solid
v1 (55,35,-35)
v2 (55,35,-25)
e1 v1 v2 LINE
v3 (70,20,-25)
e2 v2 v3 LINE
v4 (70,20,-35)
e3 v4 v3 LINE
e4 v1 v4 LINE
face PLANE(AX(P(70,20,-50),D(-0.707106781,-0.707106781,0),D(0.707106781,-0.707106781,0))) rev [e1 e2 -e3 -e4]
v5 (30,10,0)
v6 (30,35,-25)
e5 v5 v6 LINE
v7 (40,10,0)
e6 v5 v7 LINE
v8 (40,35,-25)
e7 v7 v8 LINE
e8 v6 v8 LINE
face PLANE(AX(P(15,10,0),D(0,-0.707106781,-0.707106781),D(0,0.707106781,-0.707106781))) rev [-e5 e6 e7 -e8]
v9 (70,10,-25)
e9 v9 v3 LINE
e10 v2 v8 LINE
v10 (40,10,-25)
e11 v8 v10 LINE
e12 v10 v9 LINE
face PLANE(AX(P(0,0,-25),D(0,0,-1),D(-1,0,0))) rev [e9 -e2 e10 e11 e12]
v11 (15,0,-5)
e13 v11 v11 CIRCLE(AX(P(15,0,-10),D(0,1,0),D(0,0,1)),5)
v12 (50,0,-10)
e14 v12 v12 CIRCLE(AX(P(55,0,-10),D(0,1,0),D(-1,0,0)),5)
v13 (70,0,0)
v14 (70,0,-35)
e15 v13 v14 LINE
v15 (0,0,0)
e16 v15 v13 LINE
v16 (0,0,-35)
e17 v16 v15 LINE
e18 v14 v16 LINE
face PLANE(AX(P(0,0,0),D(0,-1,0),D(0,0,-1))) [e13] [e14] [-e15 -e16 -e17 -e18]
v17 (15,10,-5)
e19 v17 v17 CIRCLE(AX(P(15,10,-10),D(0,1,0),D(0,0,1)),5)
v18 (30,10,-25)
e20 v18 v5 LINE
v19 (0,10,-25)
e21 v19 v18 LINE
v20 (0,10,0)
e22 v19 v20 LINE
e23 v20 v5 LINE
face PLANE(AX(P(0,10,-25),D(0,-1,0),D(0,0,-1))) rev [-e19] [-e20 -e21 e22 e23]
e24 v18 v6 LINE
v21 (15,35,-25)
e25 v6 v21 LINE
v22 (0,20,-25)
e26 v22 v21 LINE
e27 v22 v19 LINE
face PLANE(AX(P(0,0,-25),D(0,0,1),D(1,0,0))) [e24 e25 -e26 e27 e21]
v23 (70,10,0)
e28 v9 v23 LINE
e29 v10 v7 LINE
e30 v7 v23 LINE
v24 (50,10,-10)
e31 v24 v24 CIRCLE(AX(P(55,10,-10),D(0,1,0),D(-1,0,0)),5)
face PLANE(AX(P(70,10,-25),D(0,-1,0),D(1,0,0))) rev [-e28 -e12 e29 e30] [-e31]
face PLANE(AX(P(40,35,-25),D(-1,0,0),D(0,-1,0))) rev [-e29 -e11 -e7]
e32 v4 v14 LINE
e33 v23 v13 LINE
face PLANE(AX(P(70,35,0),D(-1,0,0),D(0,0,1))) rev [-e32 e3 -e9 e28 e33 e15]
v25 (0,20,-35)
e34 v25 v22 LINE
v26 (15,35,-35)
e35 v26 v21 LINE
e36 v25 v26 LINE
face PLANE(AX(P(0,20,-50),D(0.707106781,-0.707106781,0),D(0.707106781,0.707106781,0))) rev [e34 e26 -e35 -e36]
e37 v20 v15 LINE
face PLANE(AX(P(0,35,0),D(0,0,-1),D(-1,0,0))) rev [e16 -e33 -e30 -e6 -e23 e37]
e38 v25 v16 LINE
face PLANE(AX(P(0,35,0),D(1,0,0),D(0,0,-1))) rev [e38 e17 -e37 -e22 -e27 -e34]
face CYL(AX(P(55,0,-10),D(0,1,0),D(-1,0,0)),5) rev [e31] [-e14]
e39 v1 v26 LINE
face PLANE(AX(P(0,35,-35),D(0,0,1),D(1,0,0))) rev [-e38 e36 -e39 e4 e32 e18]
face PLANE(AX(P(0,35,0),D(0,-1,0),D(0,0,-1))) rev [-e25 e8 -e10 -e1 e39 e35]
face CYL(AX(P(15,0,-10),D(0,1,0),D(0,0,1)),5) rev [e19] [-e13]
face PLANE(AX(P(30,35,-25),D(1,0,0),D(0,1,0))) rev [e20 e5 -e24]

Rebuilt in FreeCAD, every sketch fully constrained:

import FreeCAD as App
import Part
import Sketcher

V = App.Vector
Q = App.Units.Quantity

doc = App.newDocument("Part")
body = doc.addObject("PartDesign::Body", "Body")

# Sketch on XZ plane
sketch1 = body.newObject("Sketcher::SketchObject", "Sketch")
sketch1.AttachmentSupport = (doc.getObject("XZ_Plane"), [""])
sketch1.MapMode = "FlatFace"
sketch1.addGeometry(Part.LineSegment(V(0, -35, 0), V(0, 0, 0)), False)
sketch1.addGeometry(Part.LineSegment(V(0, 0, 0), V(70, 0, 0)), False)
sketch1.addGeometry(Part.LineSegment(V(70, 0, 0), V(70, -35, 0)), False)
sketch1.addGeometry(Part.LineSegment(V(70, -35, 0), V(0, -35, 0)), False)
sketch1.addConstraint(Sketcher.Constraint("Coincident", 0, 2, 1, 1))
sketch1.addConstraint(Sketcher.Constraint("Coincident", 1, 2, 2, 1))
sketch1.addConstraint(Sketcher.Constraint("Coincident", 2, 2, 3, 1))
sketch1.addConstraint(Sketcher.Constraint("Coincident", 3, 2, 0, 1))
sketch1.addConstraint(Sketcher.Constraint("Vertical", 0))
sketch1.addConstraint(Sketcher.Constraint("Horizontal", 1))
sketch1.addConstraint(Sketcher.Constraint("Vertical", 2))
sketch1.addConstraint(Sketcher.Constraint("Horizontal", 3))
sketch1.addConstraint(Sketcher.Constraint("Coincident", 0, 2, -1, 1))
sketch1.addConstraint(Sketcher.Constraint("DistanceX", 1, 1, 1, 2, Q("70 mm")))
sketch1.addConstraint(Sketcher.Constraint("DistanceY", 0, 1, 0, 2, Q("35 mm")))
pad1 = body.newObject("PartDesign::Pad", "Pad")
pad1.Profile = sketch1
pad1.Length = 35
pad1.Reversed = True

# Sketch on XY plane
sketch2 = body.newObject("Sketcher::SketchObject", "Sketch001")
sketch2.AttachmentSupport = (doc.getObject("XY_Plane"), [""])
sketch2.MapMode = "FlatFace"
sketch2.addGeometry(Part.LineSegment(V(40, 35, 0), V(40, 10, 0)), False)
sketch2.addGeometry(Part.LineSegment(V(40, 10, 0), V(70, 10, 0)), False)
sketch2.addGeometry(Part.LineSegment(V(70, 10, 0), V(70, 35, 0)), False)
sketch2.addGeometry(Part.LineSegment(V(70, 35, 0), V(40, 35, 0)), False)
sketch2.addConstraint(Sketcher.Constraint("Coincident", 0, 2, 1, 1))
sketch2.addConstraint(Sketcher.Constraint("Coincident", 1, 2, 2, 1))
sketch2.addConstraint(Sketcher.Constraint("Coincident", 2, 2, 3, 1))
sketch2.addConstraint(Sketcher.Constraint("Coincident", 3, 2, 0, 1))
sketch2.addConstraint(Sketcher.Constraint("Vertical", 0))
sketch2.addConstraint(Sketcher.Constraint("Horizontal", 1))
sketch2.addConstraint(Sketcher.Constraint("Vertical", 2))
sketch2.addConstraint(Sketcher.Constraint("Horizontal", 3))
sketch2.addConstraint(Sketcher.Constraint("DistanceX", 1, 1, 1, 2, Q("30 mm")))
sketch2.addConstraint(Sketcher.Constraint("DistanceY", 0, 2, 0, 1, Q("25 mm")))
sketch2.addConstraint(Sketcher.Constraint("DistanceX", -1, 1, 0, 2, Q("40 mm")))
sketch2.addConstraint(Sketcher.Constraint("DistanceY", -1, 1, 0, 2, Q("10 mm")))
pocket1 = body.newObject("PartDesign::Pocket", "Pocket")
pocket1.Profile = sketch2
pocket1.Length = 25

# Sketch on XY plane
sketch3 = body.newObject("Sketcher::SketchObject", "Sketch002")
sketch3.AttachmentSupport = (doc.getObject("XY_Plane"), [""])
sketch3.MapMode = "FlatFace"
sketch3.addGeometry(Part.LineSegment(V(0, 35, 0), V(0, 10, 0)), False)
sketch3.addGeometry(Part.LineSegment(V(0, 10, 0), V(30, 10, 0)), False)
sketch3.addGeometry(Part.LineSegment(V(30, 10, 0), V(30, 35, 0)), False)
sketch3.addGeometry(Part.LineSegment(V(30, 35, 0), V(0, 35, 0)), False)
sketch3.addConstraint(Sketcher.Constraint("Coincident", 0, 2, 1, 1))
sketch3.addConstraint(Sketcher.Constraint("Coincident", 1, 2, 2, 1))
sketch3.addConstraint(Sketcher.Constraint("Coincident", 2, 2, 3, 1))
sketch3.addConstraint(Sketcher.Constraint("Coincident", 3, 2, 0, 1))
sketch3.addConstraint(Sketcher.Constraint("Vertical", 0))
sketch3.addConstraint(Sketcher.Constraint("Horizontal", 1))
sketch3.addConstraint(Sketcher.Constraint("Vertical", 2))
sketch3.addConstraint(Sketcher.Constraint("Horizontal", 3))
sketch3.addConstraint(Sketcher.Constraint("PointOnObject", 0, 2, -2))
sketch3.addConstraint(Sketcher.Constraint("DistanceX", 1, 1, 1, 2, Q("30 mm")))
sketch3.addConstraint(Sketcher.Constraint("DistanceY", 0, 2, 0, 1, Q("25 mm")))
sketch3.addConstraint(Sketcher.Constraint("DistanceY", -1, 1, 0, 2, Q("10 mm")))
pocket2 = body.newObject("PartDesign::Pocket", "Pocket001")
pocket2.Profile = sketch3
pocket2.Length = 25

# Sketch on YZ plane
sketch4 = body.newObject("Sketcher::SketchObject", "Sketch003")
sketch4.AttachmentSupport = (doc.getObject("YZ_Plane"), [""])
sketch4.MapMode = "FlatFace"
sketch4.AttachmentOffset = App.Placement(V(0, 0, 40), App.Rotation())
sketch4.addGeometry(Part.LineSegment(V(10, 0, 0), V(35, -25, 0)), False)
sketch4.addGeometry(Part.LineSegment(V(35, -25, 0), V(35, 0, 0)), False)
sketch4.addGeometry(Part.LineSegment(V(35, 0, 0), V(10, 0, 0)), False)
sketch4.addConstraint(Sketcher.Constraint("Coincident", 0, 2, 1, 1))
sketch4.addConstraint(Sketcher.Constraint("Coincident", 1, 2, 2, 1))
sketch4.addConstraint(Sketcher.Constraint("Coincident", 2, 2, 0, 1))
sketch4.addConstraint(Sketcher.Constraint("Vertical", 1))
sketch4.addConstraint(Sketcher.Constraint("Horizontal", 2))
sketch4.addConstraint(Sketcher.Constraint("PointOnObject", 1, 2, -1))
sketch4.addConstraint(Sketcher.Constraint("Equal", 2, 1))
sketch4.addConstraint(Sketcher.Constraint("DistanceX", 2, 2, 2, 1, Q("25 mm")))
sketch4.addConstraint(Sketcher.Constraint("DistanceX", -1, 1, 0, 2, Q("35 mm")))
pocket3 = body.newObject("PartDesign::Pocket", "Pocket002")
pocket3.Profile = sketch4
pocket3.Length = 25

# Sketch on XY plane
sketch5 = body.newObject("Sketcher::SketchObject", "Sketch004")
sketch5.AttachmentSupport = (doc.getObject("XY_Plane"), [""])
sketch5.MapMode = "FlatFace"
sketch5.AttachmentOffset = App.Placement(V(0, 0, -25), App.Rotation())
sketch5.addGeometry(Part.LineSegment(V(70, 20, 0), V(70, 35, 0)), False)
sketch5.addGeometry(Part.LineSegment(V(70, 35, 0), V(55, 35, 0)), False)
sketch5.addGeometry(Part.LineSegment(V(55, 35, 0), V(70, 20, 0)), False)
sketch5.addConstraint(Sketcher.Constraint("Coincident", 0, 2, 1, 1))
sketch5.addConstraint(Sketcher.Constraint("Coincident", 1, 2, 2, 1))
sketch5.addConstraint(Sketcher.Constraint("Coincident", 2, 2, 0, 1))
sketch5.addConstraint(Sketcher.Constraint("Vertical", 0))
sketch5.addConstraint(Sketcher.Constraint("Horizontal", 1))
sketch5.addConstraint(Sketcher.Constraint("Equal", 1, 0))
sketch5.addConstraint(Sketcher.Constraint("DistanceX", 1, 2, 1, 1, Q("15 mm")))
sketch5.addConstraint(Sketcher.Constraint("DistanceX", -1, 1, 0, 2, Q("70 mm")))
sketch5.addConstraint(Sketcher.Constraint("DistanceY", -1, 1, 0, 2, Q("35 mm")))
pocket4 = body.newObject("PartDesign::Pocket", "Pocket003")
pocket4.Profile = sketch5
pocket4.Length = 25

# Sketch on XY plane
sketch6 = body.newObject("Sketcher::SketchObject", "Sketch005")
sketch6.AttachmentSupport = (doc.getObject("XY_Plane"), [""])
sketch6.MapMode = "FlatFace"
sketch6.AttachmentOffset = App.Placement(V(0, 0, -25), App.Rotation())
sketch6.addGeometry(Part.LineSegment(V(0, 35, 0), V(0, 20, 0)), False)
sketch6.addGeometry(Part.LineSegment(V(0, 20, 0), V(15, 35, 0)), False)
sketch6.addGeometry(Part.LineSegment(V(15, 35, 0), V(0, 35, 0)), False)
sketch6.addConstraint(Sketcher.Constraint("Coincident", 0, 2, 1, 1))
sketch6.addConstraint(Sketcher.Constraint("Coincident", 1, 2, 2, 1))
sketch6.addConstraint(Sketcher.Constraint("Coincident", 2, 2, 0, 1))
sketch6.addConstraint(Sketcher.Constraint("Vertical", 0))
sketch6.addConstraint(Sketcher.Constraint("Horizontal", 2))
sketch6.addConstraint(Sketcher.Constraint("PointOnObject", 0, 2, -2))
sketch6.addConstraint(Sketcher.Constraint("Equal", 2, 0))
sketch6.addConstraint(Sketcher.Constraint("DistanceX", 2, 2, 2, 1, Q("15 mm")))
sketch6.addConstraint(Sketcher.Constraint("DistanceY", -1, 1, 0, 2, Q("20 mm")))
pocket5 = body.newObject("PartDesign::Pocket", "Pocket004")
pocket5.Profile = sketch6
pocket5.Length = 25

# Sketch on XZ plane
sketch7 = body.newObject("Sketcher::SketchObject", "Sketch006")
sketch7.AttachmentSupport = (doc.getObject("XZ_Plane"), [""])
sketch7.MapMode = "FlatFace"
sketch7.AttachmentOffset = App.Placement(V(0, 0, -10), App.Rotation())
sketch7.addGeometry(Part.Circle(V(55, -10, 0), V(0, 0, 1), 5), False)
sketch7.addConstraint(Sketcher.Constraint("Diameter", 0, Q("10 mm")))
sketch7.addConstraint(Sketcher.Constraint("DistanceX", -1, 1, 0, 3, Q("55 mm")))
sketch7.addConstraint(Sketcher.Constraint("DistanceY", 0, 3, -1, 1, Q("10 mm")))
pocket6 = body.newObject("PartDesign::Pocket", "Pocket005")
pocket6.Profile = sketch7
pocket6.Type = "ThroughAll"
pocket6.Reversed = True

# Sketch on XZ plane
sketch8 = body.newObject("Sketcher::SketchObject", "Sketch007")
sketch8.AttachmentSupport = (doc.getObject("XZ_Plane"), [""])
sketch8.MapMode = "FlatFace"
sketch8.AttachmentOffset = App.Placement(V(0, 0, -10), App.Rotation())
sketch8.addGeometry(Part.Circle(V(15, -10, 0), V(0, 0, 1), 5), False)
sketch8.addConstraint(Sketcher.Constraint("Diameter", 0, Q("10 mm")))
sketch8.addConstraint(Sketcher.Constraint("DistanceX", -1, 1, 0, 3, Q("15 mm")))
sketch8.addConstraint(Sketcher.Constraint("DistanceY", 0, 3, -1, 1, Q("10 mm")))
pocket7 = body.newObject("PartDesign::Pocket", "Pocket006")
pocket7.Profile = sketch8
pocket7.Type = "ThroughAll"
pocket7.Reversed = True

doc.recompute()
